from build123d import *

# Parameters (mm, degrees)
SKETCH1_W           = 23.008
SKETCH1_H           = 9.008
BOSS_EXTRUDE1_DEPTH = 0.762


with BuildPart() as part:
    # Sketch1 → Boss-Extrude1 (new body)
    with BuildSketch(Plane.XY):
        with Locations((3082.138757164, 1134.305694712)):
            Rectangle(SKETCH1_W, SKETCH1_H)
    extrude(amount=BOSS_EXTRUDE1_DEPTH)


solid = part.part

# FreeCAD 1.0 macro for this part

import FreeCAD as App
import Part
import Sketcher

V = App.Vector
Q = App.Units.Quantity


def add_polygon(sketch, points):
    """Adds a closed chain of lines whose ends are joined by coincident constraints."""
    first, n = sketch.GeometryCount, len(points)
    for a, b in zip(points, points[1:] + points[:1]):
        sketch.addGeometry(Part.LineSegment(App.Vector(*a, 0), App.Vector(*b, 0)), False)
    for i in range(n):
        sketch.addConstraint(Sketcher.Constraint("Coincident", first + i, 2, first + (i + 1) % n, 1))

doc = App.newDocument("Part")
body = doc.addObject("PartDesign::Body", "Body")

# Sketch on XY plane
sketch1 = body.newObject("Sketcher::SketchObject", "Sketch")
sketch1.AttachmentSupport = (doc.getObject("XY_Plane"), [""])
sketch1.MapMode = "FlatFace"
add_polygon(sketch1, [(3070.634757, 1138.809695), (3070.634757, 1129.801695), (3093.642757, 1129.801695), (3093.642757, 1138.809695)])  # lines 0-3
sketch1.addConstraint(Sketcher.Constraint("Vertical", 0))
sketch1.addConstraint(Sketcher.Constraint("Horizontal", 1))
sketch1.addConstraint(Sketcher.Constraint("Vertical", 2))
sketch1.addConstraint(Sketcher.Constraint("Horizontal", 3))
sketch1.addConstraint(Sketcher.Constraint("DistanceX", 1, 1, 1, 2, Q("23.008 mm")))
sketch1.addConstraint(Sketcher.Constraint("DistanceY", 0, 2, 0, 1, Q("9.008 mm")))
sketch1.addConstraint(Sketcher.Constraint("DistanceX", -1, 1, 0, 2, Q("3070.634757 mm")))
sketch1.addConstraint(Sketcher.Constraint("DistanceY", -1, 1, 0, 2, Q("1129.801695 mm")))
pad1 = body.newObject("PartDesign::Pad", "Pad")
pad1.Profile = sketch1
pad1.Length = Q("0.03 in")

doc.recompute()
